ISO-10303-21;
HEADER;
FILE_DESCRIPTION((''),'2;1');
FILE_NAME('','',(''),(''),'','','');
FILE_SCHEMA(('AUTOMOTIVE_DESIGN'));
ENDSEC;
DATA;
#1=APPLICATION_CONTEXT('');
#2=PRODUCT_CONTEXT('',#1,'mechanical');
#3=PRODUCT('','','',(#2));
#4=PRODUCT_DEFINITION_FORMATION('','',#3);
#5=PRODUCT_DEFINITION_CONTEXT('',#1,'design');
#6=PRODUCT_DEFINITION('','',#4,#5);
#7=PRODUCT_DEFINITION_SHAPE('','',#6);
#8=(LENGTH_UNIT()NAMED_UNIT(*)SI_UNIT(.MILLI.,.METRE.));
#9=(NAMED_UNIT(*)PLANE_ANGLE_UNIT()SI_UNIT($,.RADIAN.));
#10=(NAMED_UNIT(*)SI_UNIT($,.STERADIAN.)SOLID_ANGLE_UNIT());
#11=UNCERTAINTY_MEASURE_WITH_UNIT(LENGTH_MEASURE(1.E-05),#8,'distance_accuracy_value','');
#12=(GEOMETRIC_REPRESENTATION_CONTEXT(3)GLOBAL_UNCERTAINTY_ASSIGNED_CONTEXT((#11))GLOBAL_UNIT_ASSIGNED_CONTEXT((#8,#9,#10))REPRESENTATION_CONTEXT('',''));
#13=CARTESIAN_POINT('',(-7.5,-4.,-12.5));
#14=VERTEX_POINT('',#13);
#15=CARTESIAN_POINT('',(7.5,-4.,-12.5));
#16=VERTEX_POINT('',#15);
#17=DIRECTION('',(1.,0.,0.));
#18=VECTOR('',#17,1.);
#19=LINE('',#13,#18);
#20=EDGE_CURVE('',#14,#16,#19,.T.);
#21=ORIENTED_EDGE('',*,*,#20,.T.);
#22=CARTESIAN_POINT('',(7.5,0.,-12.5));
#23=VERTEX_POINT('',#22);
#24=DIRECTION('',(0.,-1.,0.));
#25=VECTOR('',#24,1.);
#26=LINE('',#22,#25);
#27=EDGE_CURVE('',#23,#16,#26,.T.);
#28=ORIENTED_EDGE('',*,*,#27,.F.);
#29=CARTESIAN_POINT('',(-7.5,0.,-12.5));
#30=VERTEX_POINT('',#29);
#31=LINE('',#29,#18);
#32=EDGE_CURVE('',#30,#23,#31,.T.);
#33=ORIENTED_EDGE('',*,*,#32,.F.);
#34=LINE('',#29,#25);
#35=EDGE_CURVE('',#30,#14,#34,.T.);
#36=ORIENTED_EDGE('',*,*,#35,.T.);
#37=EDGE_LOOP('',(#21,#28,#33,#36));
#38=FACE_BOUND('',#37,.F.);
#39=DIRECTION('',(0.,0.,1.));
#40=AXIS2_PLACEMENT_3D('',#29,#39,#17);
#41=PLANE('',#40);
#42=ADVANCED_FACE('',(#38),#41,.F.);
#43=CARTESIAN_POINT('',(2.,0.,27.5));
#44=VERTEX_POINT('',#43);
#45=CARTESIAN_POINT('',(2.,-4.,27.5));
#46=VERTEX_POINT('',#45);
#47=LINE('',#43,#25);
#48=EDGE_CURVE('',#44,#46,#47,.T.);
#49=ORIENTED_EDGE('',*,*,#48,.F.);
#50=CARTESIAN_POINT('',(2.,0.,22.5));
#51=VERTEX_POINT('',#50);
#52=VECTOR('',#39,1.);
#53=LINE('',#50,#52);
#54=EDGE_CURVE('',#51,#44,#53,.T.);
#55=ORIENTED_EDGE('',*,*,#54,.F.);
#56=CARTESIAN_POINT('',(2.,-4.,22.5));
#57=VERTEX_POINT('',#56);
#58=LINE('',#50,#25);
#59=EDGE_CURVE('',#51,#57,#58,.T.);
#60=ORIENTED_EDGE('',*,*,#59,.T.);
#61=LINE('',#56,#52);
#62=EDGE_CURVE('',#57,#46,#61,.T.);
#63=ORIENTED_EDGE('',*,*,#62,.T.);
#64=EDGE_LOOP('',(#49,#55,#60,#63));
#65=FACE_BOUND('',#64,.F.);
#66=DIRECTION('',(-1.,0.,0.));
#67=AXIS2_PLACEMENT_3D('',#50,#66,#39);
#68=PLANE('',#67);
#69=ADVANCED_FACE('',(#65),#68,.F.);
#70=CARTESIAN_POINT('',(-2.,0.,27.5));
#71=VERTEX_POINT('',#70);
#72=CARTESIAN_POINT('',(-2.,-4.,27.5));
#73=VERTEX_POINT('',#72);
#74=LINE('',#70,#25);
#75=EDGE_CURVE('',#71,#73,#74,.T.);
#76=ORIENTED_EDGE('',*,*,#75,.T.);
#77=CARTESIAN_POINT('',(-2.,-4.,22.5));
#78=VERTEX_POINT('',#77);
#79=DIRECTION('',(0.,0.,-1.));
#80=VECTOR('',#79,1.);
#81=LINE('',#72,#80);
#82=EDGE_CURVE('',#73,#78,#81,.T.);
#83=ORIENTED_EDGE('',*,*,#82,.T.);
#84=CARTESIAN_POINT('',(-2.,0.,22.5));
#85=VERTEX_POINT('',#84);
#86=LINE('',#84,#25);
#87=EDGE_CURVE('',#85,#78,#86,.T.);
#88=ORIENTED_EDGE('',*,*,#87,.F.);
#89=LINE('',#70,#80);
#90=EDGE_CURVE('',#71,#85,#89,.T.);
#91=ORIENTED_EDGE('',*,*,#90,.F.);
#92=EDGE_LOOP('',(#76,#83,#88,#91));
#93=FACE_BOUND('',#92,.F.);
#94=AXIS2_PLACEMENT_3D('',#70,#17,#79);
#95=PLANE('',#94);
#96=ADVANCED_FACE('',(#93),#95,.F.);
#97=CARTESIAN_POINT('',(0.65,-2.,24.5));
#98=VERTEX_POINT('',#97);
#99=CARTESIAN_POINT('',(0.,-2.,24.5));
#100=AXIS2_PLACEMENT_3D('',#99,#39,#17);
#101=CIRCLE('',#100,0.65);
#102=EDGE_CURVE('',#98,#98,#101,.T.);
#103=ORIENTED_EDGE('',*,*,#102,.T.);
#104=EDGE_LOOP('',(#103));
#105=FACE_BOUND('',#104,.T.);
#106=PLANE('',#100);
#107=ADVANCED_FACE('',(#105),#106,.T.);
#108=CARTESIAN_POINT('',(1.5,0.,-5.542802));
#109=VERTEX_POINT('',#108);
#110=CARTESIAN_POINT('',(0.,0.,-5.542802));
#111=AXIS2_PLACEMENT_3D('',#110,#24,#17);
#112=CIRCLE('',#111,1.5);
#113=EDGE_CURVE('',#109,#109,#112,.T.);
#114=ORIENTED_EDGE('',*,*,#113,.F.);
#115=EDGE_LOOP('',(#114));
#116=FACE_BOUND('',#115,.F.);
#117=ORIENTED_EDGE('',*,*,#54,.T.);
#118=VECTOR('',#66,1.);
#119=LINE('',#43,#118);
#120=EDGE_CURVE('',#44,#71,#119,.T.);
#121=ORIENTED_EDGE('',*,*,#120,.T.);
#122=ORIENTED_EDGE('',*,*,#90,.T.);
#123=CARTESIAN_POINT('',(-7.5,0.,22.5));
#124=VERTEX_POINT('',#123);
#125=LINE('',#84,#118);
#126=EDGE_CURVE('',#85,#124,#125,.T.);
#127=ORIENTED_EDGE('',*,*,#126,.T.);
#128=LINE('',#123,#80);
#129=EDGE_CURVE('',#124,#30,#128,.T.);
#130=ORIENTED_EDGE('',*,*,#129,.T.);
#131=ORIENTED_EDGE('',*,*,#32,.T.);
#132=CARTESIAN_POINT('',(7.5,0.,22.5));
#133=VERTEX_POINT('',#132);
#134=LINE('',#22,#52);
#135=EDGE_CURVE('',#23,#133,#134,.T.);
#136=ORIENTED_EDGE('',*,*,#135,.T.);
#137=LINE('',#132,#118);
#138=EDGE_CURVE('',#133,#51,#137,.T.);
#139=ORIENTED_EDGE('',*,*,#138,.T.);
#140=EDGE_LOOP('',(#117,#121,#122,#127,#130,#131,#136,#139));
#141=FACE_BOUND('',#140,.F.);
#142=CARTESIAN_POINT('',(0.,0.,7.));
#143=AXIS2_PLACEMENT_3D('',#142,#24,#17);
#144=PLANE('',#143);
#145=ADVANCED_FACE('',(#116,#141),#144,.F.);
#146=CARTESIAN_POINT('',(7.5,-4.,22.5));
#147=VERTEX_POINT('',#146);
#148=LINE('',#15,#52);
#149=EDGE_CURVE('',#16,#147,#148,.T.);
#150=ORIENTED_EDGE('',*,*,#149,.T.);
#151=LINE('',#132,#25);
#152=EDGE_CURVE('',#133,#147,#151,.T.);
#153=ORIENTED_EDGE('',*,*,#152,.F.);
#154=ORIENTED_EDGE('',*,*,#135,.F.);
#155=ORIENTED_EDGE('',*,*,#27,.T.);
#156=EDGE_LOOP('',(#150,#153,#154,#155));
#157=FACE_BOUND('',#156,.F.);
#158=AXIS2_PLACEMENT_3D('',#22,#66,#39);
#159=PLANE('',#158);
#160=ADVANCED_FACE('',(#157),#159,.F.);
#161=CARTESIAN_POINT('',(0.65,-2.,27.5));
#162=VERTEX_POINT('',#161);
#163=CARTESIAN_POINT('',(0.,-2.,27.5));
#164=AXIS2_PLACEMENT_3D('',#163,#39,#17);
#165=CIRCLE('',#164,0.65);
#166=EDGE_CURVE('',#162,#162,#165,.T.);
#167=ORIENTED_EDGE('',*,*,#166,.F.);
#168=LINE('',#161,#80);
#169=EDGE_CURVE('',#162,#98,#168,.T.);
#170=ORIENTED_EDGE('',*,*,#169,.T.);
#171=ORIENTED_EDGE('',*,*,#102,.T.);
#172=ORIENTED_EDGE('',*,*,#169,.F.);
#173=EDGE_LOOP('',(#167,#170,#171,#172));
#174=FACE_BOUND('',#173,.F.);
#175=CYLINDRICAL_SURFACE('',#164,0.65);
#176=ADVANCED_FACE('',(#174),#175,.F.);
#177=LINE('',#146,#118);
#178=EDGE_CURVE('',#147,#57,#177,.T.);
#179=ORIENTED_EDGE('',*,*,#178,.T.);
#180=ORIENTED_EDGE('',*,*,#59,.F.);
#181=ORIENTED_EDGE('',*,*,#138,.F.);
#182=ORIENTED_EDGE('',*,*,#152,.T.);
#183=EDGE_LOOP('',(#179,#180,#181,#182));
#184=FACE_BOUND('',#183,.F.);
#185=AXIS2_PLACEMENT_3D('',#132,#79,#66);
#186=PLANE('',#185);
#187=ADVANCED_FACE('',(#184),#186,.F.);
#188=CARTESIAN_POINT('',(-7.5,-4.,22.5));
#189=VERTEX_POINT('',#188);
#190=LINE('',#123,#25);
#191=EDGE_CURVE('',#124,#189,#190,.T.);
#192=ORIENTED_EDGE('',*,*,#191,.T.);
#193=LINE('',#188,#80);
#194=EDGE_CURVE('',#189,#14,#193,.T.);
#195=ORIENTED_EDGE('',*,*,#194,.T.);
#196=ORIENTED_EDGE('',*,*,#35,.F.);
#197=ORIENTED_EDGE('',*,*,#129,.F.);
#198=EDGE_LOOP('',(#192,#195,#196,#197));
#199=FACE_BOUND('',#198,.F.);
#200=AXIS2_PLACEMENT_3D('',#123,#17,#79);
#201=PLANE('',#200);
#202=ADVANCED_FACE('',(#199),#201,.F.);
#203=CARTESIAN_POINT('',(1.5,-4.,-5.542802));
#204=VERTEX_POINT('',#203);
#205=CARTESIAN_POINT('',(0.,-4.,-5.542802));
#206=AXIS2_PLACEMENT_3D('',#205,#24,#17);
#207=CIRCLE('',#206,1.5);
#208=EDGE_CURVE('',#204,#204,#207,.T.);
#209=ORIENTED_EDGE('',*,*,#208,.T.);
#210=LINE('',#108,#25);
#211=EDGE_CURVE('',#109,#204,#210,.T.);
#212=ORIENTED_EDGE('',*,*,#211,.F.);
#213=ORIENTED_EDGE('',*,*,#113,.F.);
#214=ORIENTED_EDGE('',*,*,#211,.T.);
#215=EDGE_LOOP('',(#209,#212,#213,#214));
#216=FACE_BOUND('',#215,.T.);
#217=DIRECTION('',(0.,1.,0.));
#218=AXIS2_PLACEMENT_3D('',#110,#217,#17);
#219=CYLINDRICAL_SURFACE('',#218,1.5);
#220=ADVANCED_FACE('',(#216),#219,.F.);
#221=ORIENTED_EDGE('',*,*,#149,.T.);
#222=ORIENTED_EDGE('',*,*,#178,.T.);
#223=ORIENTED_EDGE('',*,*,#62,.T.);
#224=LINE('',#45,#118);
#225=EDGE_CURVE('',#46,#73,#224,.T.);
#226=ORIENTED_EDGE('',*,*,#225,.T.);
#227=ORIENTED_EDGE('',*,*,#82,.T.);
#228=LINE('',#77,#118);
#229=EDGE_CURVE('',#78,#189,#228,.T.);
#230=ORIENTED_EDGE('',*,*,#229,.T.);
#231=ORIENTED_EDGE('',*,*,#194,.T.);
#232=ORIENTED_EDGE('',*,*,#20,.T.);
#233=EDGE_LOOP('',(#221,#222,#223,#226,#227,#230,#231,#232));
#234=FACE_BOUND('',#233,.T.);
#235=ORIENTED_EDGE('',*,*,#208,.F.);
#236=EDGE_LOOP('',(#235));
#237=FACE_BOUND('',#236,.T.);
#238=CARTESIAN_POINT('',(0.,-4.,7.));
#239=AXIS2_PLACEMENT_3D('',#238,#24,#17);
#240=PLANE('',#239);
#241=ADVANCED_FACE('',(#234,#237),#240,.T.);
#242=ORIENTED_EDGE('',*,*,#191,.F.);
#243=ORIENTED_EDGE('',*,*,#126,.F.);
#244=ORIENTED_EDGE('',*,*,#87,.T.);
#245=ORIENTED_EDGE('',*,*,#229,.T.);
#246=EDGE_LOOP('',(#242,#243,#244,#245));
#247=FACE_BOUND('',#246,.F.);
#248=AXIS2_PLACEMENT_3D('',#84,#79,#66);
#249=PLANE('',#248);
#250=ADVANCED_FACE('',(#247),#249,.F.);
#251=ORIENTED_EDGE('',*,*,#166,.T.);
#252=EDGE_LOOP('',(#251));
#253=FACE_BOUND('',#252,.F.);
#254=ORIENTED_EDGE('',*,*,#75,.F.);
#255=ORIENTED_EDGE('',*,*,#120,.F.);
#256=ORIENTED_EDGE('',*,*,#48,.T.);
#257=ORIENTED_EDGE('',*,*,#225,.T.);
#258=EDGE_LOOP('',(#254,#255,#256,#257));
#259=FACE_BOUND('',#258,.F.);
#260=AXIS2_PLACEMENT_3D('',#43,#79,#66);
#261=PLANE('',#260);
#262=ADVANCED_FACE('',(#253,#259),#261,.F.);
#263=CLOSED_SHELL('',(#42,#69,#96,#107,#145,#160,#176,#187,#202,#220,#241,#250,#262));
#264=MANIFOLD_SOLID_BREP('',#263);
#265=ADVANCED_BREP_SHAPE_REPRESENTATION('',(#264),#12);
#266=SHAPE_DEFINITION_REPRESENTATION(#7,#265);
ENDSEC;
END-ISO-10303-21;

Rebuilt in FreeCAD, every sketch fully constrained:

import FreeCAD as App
import Part
import Sketcher


def add_polygon(sketch, points):
    """Adds a closed chain of lines whose ends are joined by coincident constraints."""
    first, n = sketch.GeometryCount, len(points)
    for a, b in zip(points, points[1:] + points[:1]):
        sketch.addGeometry(Part.LineSegment(App.Vector(*a, 0), App.Vector(*b, 0)), False)
    for i in range(n):
        sketch.addConstraint(Sketcher.Constraint("Coincident", first + i, 2, first + (i + 1) % n, 1))

doc = App.newDocument("Part")
body = doc.addObject("PartDesign::Body", "Body")

# Sketch on XZ plane
sketch1 = doc.addObject("Sketcher::SketchObject", "Sketch")
body.addObject(sketch1)
sketch1.AttachmentSupport = (doc.XZ_Plane, [""])
sketch1.MapMode = "FlatFace"
add_polygon(sketch1, [(-7.5, -12.5), (7.5, -12.5), (7.5, 22.5), (2, 22.5), (2, 27.5), (-2, 27.5), (-2, 22.5), (-7.5, 22.5)])  # lines 0-7
sketch1.addGeometry(Part.Circle(App.Vector(0, -5.542802, 0), App.Vector(0, 0, 1), 1.5), False)  # 8
sketch1.addConstraint([
    Sketcher.Constraint("Horizontal", 0),
    Sketcher.Constraint("Vertical", 1),
    Sketcher.Constraint("Horizontal", 2),
    Sketcher.Constraint("Vertical", 3),
    Sketcher.Constraint("Horizontal", 4),
    Sketcher.Constraint("Vertical", 5),
    Sketcher.Constraint("Horizontal", 6),
    Sketcher.Constraint("Vertical", 7),
    Sketcher.Constraint("Symmetric", 2, 2, 5, 2, -2),
    Sketcher.Constraint("PointOnObject", 8, 3, -2),
    Sketcher.Constraint("Equal", 2, 6),
    Sketcher.Constraint("Diameter", 8, 3.0),
    Sketcher.Constraint("DistanceX", 0, 1, 0, 2, 15.0),
    Sketcher.Constraint("DistanceX", 4, 2, 4, 1, 4.0),
    Sketcher.Constraint("DistanceY", 1, 1, 1, 2, 35.0),
    Sketcher.Constraint("DistanceY", 3, 1, 3, 2, 5.0),
    Sketcher.Constraint("DistanceY", 0, 2, -1, 1, 12.5),
    Sketcher.Constraint("DistanceY", 8, 3, -1, 1, 5.542802),
])
pad1 = doc.addObject("PartDesign::Pad", "Pad")
body.addObject(pad1)
pad1.Profile = sketch1
pad1.Length = 4

# Sketch on XZ plane
sketch2 = doc.addObject("Sketcher::SketchObject", "Sketch001")
body.addObject(sketch2)
sketch2.AttachmentSupport = (doc.XZ_Plane, [""])
sketch2.MapMode = "FlatFace"
add_polygon(sketch2, [(-7.5, -12.5), (7.5, -12.5), (7.5, 22.5), (2, 22.5), (2, 27.5), (-2, 27.5), (-2, 22.5), (-7.5, 22.5)])  # lines 0-7
sketch2.addGeometry(Part.Circle(App.Vector(0, -5.542802, 0), App.Vector(0, 0, 1), 1.5), False)  # 8
sketch2.addConstraint([
    Sketcher.Constraint("Horizontal", 0),
    Sketcher.Constraint("Vertical", 1),
    Sketcher.Constraint("Horizontal", 2),
    Sketcher.Constraint("Vertical", 3),
    Sketcher.Constraint("Horizontal", 4),
    Sketcher.Constraint("Vertical", 5),
    Sketcher.Constraint("Horizontal", 6),
    Sketcher.Constraint("Vertical", 7),
    Sketcher.Constraint("Symmetric", 2, 2, 5, 2, -2),
    Sketcher.Constraint("PointOnObject", 8, 3, -2),
    Sketcher.Constraint("Equal", 2, 6),
    Sketcher.Constraint("Diameter", 8, 3.0),
    Sketcher.Constraint("DistanceX", 0, 1, 0, 2, 15.0),
    Sketcher.Constraint("DistanceX", 4, 2, 4, 1, 4.0),
    Sketcher.Constraint("DistanceY", 1, 1, 1, 2, 35.0),
    Sketcher.Constraint("DistanceY", 3, 1, 3, 2, 5.0),
    Sketcher.Constraint("DistanceY", 0, 2, -1, 1, 12.5),
    Sketcher.Constraint("DistanceY", 8, 3, -1, 1, 5.542802),
])
pad2 = doc.addObject("PartDesign::Pad", "Pad001")
body.addObject(pad2)
pad2.Profile = sketch2
pad2.Length = 4

# Sketch on XY plane
sketch3 = doc.addObject("Sketcher::SketchObject", "Sketch002")
body.addObject(sketch3)
sketch3.AttachmentSupport = (doc.XY_Plane, [""])
sketch3.MapMode = "FlatFace"
sketch3.AttachmentOffset = App.Placement(App.Vector(0, 0, 27.5), App.Rotation())
sketch3.addGeometry(Part.Circle(App.Vector(0, -2, 0), App.Vector(0, 0, 1), 0.65), False)
sketch3.addConstraint([
    Sketcher.Constraint("PointOnObject", 0, 3, -2),
    Sketcher.Constraint("Diameter", 0, 1.3),
    Sketcher.Constraint("DistanceY", 0, 3, -1, 1, 2.0),
])
pocket1 = doc.addObject("PartDesign::Pocket", "Pocket")
body.addObject(pocket1)
pocket1.Profile = sketch3
pocket1.Length = 3

doc.recompute()
